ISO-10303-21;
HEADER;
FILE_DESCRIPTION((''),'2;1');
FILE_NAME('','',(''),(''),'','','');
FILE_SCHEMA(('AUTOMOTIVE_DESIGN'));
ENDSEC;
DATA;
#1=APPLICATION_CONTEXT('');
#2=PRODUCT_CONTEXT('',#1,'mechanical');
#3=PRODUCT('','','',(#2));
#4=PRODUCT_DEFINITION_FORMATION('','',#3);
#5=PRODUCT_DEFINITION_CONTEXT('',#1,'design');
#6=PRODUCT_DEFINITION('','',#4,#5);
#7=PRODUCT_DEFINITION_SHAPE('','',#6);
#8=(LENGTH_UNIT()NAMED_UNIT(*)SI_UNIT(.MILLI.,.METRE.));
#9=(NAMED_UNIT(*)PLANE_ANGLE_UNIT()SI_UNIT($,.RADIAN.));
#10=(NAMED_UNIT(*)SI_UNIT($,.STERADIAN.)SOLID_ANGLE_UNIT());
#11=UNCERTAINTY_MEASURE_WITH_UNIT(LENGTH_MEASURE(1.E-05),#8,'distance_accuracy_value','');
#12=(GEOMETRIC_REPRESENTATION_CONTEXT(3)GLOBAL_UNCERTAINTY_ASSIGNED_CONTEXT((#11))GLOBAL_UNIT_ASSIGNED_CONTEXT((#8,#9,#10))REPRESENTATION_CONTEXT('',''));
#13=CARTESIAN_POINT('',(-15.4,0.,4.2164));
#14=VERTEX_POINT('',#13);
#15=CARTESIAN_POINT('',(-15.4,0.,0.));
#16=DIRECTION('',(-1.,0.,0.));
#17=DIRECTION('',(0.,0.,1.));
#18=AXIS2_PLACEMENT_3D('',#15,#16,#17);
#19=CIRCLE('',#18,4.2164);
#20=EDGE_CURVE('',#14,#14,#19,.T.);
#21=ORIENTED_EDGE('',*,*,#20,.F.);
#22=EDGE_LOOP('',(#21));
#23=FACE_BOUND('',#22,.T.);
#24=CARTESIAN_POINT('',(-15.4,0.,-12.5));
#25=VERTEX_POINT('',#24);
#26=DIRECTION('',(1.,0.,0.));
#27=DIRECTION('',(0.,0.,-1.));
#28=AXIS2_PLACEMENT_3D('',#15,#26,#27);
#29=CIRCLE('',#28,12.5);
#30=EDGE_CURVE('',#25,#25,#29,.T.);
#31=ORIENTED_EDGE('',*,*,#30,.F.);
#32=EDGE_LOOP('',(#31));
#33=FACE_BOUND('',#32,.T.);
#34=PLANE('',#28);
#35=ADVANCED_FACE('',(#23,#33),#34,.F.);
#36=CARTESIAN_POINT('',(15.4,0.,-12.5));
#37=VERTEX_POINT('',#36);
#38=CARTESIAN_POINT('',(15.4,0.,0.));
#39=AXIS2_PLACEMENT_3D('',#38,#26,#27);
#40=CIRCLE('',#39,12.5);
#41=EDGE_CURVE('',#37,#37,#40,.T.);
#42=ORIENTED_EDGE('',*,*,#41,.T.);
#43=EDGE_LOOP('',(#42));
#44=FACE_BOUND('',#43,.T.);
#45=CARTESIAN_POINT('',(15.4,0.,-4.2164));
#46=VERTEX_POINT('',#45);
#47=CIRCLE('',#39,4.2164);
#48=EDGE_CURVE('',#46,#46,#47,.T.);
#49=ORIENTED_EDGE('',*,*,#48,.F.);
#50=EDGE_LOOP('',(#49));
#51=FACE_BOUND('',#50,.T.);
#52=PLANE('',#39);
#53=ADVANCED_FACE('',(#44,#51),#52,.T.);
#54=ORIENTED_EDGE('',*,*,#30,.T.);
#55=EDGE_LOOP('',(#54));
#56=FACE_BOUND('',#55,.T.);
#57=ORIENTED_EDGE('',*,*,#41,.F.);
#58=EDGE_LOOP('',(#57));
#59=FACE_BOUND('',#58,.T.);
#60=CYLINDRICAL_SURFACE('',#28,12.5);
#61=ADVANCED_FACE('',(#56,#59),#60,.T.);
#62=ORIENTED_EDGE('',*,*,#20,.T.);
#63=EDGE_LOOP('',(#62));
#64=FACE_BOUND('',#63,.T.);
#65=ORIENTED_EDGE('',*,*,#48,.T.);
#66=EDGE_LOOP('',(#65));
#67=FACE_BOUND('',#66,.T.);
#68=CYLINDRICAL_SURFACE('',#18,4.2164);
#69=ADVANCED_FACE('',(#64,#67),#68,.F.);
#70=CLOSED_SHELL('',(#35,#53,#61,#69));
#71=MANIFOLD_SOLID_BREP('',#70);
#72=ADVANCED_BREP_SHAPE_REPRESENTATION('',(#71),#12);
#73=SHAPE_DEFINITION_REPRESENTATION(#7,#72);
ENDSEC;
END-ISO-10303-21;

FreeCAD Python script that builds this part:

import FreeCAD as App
import Part
import Sketcher
from FreeCAD import Vector
Q = App.Units.Quantity

doc = App.newDocument("Part")
params = doc.addObject("Spreadsheet::Sheet", "Params")
for row, (alias, value) in enumerate([
    ("sketch1_diameter", "25 mm"),
    ("pad1_length", "30.8 mm"),
    ("hole_diameter", "8.4328 mm"),
    ("hole_depth", "15 mm"),
    ("hole2_diameter", "8.4328 mm"),
    ("hole2_depth", "18 mm"),
], start=1):
    params.set(f"A{row}", alias)
    params.set(f"B{row}", "=" + value)
    params.setAlias(f"B{row}", alias)

body = doc.addObject("PartDesign::Body", "Body")

sketch1 = body.newObject("Sketcher::SketchObject", "Sketch")
sketch1.AttachmentSupport = (doc.getObject("YZ_Plane"), [""])
sketch1.MapMode = "FlatFace"
sketch1.AttachmentOffset = App.Placement(Vector(0, 0, -15.4), App.Rotation())
sketch1.addGeometry(Part.Circle(Vector(0, 0, 0), Vector(0, 0, 1), 12), False)
sketch1.addConstraint(Sketcher.Constraint("Coincident", 0, 3, -1, 1))
sketch1.addConstraint(Sketcher.Constraint("Diameter", 0, Q("25 mm")))
sketch1.setExpression("Constraints[1]", "Params.sketch1_diameter")
pad1 = body.newObject("PartDesign::Pad", "Pad")
pad1.Profile = sketch1
pad1.setExpression("Length", "Params.pad1_length")

sketch2 = body.newObject("Sketcher::SketchObject", "Sketch001")
sketch2.AttachmentSupport = (doc.getObject("YZ_Plane"), [""])
sketch2.MapMode = "FlatFace"
sketch2.AttachmentOffset = App.Placement(Vector(0, 0, -15.4), App.Rotation())
sketch2.addGeometry(Part.Circle(Vector(0, 0, 0), Vector(0, 0, 1), 4.2), False)
sketch2.addConstraint(Sketcher.Constraint("Coincident", 0, 3, -1, 1))
sketch2.addConstraint(Sketcher.Constraint("Diameter", 0, Q("8.4328 mm")))
doc.recompute()
hole = body.newObject("PartDesign::Hole", "Hole")
hole.Profile = sketch2
hole.ThreadType = "None"
hole.setExpression("Diameter", "Params.hole_diameter")
hole.DepthType = "Dimension"
hole.setExpression("Depth", "Params.hole_depth")
hole.DrillPoint = "Angled"
hole.DrillPointAngle = 118
hole.Reversed = True

sketch3 = body.newObject("Sketcher::SketchObject", "Sketch002")
sketch3.AttachmentSupport = (doc.getObject("YZ_Plane"), [""])
sketch3.MapMode = "FlatFace"
sketch3.AttachmentOffset = App.Placement(Vector(0, 0, 15.4), App.Rotation())
sketch3.addGeometry(Part.Circle(Vector(0, 0, 0), Vector(0, 0, 1), 4.2), False)
sketch3.addConstraint(Sketcher.Constraint("Coincident", 0, 3, -1, 1))
sketch3.addConstraint(Sketcher.Constraint("Diameter", 0, Q("8.4328 mm")))
doc.recompute()
hole2 = body.newObject("PartDesign::Hole", "Hole001")
hole2.Profile = sketch3
hole2.ThreadType = "None"
hole2.setExpression("Diameter", "Params.hole2_diameter")
hole2.DepthType = "Dimension"
hole2.setExpression("Depth", "Params.hole2_depth")
hole2.DrillPoint = "Angled"
hole2.DrillPointAngle = 118

doc.recompute()
